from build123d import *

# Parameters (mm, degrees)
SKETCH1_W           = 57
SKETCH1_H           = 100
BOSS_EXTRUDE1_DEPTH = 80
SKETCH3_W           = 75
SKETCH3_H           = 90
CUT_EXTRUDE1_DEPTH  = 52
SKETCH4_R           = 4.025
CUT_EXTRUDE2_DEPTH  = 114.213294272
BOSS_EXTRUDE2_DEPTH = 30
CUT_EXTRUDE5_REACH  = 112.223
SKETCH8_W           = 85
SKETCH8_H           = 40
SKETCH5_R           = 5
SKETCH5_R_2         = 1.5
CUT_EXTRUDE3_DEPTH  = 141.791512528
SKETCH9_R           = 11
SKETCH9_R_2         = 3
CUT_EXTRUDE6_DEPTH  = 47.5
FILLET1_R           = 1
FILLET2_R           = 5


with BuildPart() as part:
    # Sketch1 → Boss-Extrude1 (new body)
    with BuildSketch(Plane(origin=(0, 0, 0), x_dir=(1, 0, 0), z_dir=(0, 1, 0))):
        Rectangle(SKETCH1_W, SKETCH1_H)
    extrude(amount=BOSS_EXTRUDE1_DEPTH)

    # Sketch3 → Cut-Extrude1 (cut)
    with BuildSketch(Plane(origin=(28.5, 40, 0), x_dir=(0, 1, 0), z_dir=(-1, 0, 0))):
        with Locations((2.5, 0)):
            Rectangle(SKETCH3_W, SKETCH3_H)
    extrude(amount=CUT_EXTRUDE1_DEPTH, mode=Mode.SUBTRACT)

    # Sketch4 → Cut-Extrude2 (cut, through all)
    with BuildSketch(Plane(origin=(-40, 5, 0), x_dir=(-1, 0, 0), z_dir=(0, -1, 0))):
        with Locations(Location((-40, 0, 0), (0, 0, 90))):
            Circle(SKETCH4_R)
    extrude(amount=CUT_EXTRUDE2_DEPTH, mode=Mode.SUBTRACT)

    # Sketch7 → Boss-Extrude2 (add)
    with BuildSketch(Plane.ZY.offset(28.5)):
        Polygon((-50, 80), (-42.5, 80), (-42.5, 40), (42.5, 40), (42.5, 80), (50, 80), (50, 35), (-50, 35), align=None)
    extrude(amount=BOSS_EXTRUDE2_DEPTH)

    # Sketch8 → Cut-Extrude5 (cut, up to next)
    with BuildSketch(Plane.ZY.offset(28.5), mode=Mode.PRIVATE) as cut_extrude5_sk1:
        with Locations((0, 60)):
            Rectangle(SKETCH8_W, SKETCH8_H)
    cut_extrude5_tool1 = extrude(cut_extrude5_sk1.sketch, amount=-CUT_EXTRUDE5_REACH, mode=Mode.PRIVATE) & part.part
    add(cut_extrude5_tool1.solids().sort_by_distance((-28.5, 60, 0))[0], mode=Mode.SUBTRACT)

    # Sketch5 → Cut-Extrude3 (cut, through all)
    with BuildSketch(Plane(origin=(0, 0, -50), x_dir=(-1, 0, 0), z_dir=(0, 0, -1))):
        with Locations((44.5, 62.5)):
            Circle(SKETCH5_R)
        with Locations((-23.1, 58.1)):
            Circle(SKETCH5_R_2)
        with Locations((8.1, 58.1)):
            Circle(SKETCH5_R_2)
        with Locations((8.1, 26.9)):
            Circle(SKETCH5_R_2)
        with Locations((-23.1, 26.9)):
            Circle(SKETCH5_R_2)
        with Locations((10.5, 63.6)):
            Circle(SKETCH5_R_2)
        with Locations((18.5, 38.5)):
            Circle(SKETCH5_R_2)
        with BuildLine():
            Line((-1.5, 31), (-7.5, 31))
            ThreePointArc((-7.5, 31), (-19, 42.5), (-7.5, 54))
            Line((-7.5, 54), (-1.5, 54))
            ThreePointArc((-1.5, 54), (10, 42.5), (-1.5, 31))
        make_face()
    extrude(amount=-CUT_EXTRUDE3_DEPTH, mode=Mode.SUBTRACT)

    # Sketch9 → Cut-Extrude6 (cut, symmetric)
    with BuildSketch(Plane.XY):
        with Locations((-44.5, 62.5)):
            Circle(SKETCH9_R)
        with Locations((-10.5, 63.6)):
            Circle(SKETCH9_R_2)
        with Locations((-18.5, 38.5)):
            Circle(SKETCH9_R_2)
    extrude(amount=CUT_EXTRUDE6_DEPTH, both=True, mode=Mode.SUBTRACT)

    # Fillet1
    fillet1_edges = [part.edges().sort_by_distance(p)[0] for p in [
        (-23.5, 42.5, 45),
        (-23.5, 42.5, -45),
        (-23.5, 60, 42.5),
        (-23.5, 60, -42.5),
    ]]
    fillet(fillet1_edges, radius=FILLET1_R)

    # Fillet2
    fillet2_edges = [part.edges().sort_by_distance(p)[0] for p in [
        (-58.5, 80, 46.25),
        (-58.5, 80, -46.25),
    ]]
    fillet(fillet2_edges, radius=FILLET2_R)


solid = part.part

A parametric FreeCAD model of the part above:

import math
import FreeCAD as App
import Part
import Sketcher

V = App.Vector


def edges_at(feature, points):
    """Names of the edges that pass closest to the given points."""
    edges = feature.Shape.Edges
    near = lambda p: min(range(len(edges)), key=lambda i: edges[i].distToShape(Part.Vertex(*p))[0])
    return sorted({f"Edge{near(p) + 1}" for p in points})

doc = App.newDocument("Part")
body = doc.addObject("PartDesign::Body", "Body")

sketch1 = doc.addObject("Sketcher::SketchObject", "Sketch")
body.addObject(sketch1)
sketch1.AttachmentSupport = (doc.XZ_Plane, [""])
sketch1.MapMode = "FlatFace"
sketch1.addGeometry([
    Part.LineSegment(V(-28, -50, 0), V(-28, 50, 0)),
    Part.LineSegment(V(-28, 50, 0), V(28, 50, 0)),
    Part.LineSegment(V(28, 50, 0), V(28, -50, 0)),
    Part.LineSegment(V(28, -50, 0), V(-28, -50, 0)),
], False)
sketch1.addConstraint([
    Sketcher.Constraint("Coincident", 0, 2, 1, 1),
    Sketcher.Constraint("Coincident", 1, 2, 2, 1),
    Sketcher.Constraint("Coincident", 2, 2, 3, 1),
    Sketcher.Constraint("Coincident", 3, 2, 0, 1),
    Sketcher.Constraint("Vertical", 0),
    Sketcher.Constraint("Horizontal", 1),
    Sketcher.Constraint("Vertical", 2),
    Sketcher.Constraint("Horizontal", 3),
    Sketcher.Constraint("Symmetric", 0, 2, 2, 2, -1, 1),
    Sketcher.Constraint("DistanceX", 1, 1, 1, 2, 57.0),
    Sketcher.Constraint("DistanceY", 0, 1, 0, 2, 100.0),
])
pad1 = doc.addObject("PartDesign::Pad", "Pad")
body.addObject(pad1)
pad1.Profile = sketch1
pad1.Length = 80
pad1.Reversed = True

sketch2 = doc.addObject("Sketcher::SketchObject", "Sketch001")
body.addObject(sketch2)
sketch2.AttachmentSupport = (doc.YZ_Plane, [""])
sketch2.MapMode = "FlatFace"
sketch2.AttachmentOffset = App.Placement(V(0, 0, 28.5), App.Rotation())
sketch2.addGeometry([
    Part.LineSegment(V(5, -45, 0), V(5, 45, 0)),
    Part.LineSegment(V(5, 45, 0), V(80, 45, 0)),
    Part.LineSegment(V(80, 45, 0), V(80, -45, 0)),
    Part.LineSegment(V(80, -45, 0), V(5, -45, 0)),
], False)
sketch2.addConstraint([
    Sketcher.Constraint("Coincident", 0, 2, 1, 1),
    Sketcher.Constraint("Coincident", 1, 2, 2, 1),
    Sketcher.Constraint("Coincident", 2, 2, 3, 1),
    Sketcher.Constraint("Coincident", 3, 2, 0, 1),
    Sketcher.Constraint("Vertical", 0),
    Sketcher.Constraint("Horizontal", 1),
    Sketcher.Constraint("Vertical", 2),
    Sketcher.Constraint("Horizontal", 3),
    Sketcher.Constraint("DistanceX", 1, 1, 1, 2, 75.0),
    Sketcher.Constraint("DistanceY", 0, 1, 0, 2, 90.0),
    Sketcher.Constraint("DistanceX", -1, 1, 0, 2, 5.0),
    Sketcher.Constraint("DistanceY", -1, 1, 0, 2, 45.0),
])
pocket1 = doc.addObject("PartDesign::Pocket", "Pocket")
body.addObject(pocket1)
pocket1.Profile = sketch2
pocket1.Length = 52

sketch3 = doc.addObject("Sketcher::SketchObject", "Sketch002")
body.addObject(sketch3)
sketch3.AttachmentSupport = (doc.XZ_Plane, [""])
sketch3.MapMode = "FlatFace"
sketch3.AttachmentOffset = App.Placement(V(0, 0, -5), App.Rotation())
sketch3.addGeometry(Part.Circle(V(0, 0, 0), V(0, 0, 1), 4), False)
sketch3.addConstraint([
    Sketcher.Constraint("Coincident", 0, 3, -1, 1),
    Sketcher.Constraint("Diameter", 0, 8.05),
])
pocket2 = doc.addObject("PartDesign::Pocket", "Pocket001")
body.addObject(pocket2)
pocket2.Profile = sketch3
pocket2.Type = "ThroughAll"
pocket2.Reversed = True

sketch4 = doc.addObject("Sketcher::SketchObject", "Sketch003")
body.addObject(sketch4)
sketch4.AttachmentSupport = (doc.YZ_Plane, [""])
sketch4.MapMode = "FlatFace"
sketch4.AttachmentOffset = App.Placement(V(0, 0, -28.5), App.Rotation())
sketch4.addGeometry([
    Part.LineSegment(V(80, -42, 0), V(80, -50, 0)),
    Part.LineSegment(V(80, -50, 0), V(35, -50, 0)),
    Part.LineSegment(V(35, -50, 0), V(35, 50, 0)),
    Part.LineSegment(V(35, 50, 0), V(80, 50, 0)),
    Part.LineSegment(V(80, 50, 0), V(80, 42, 0)),
    Part.LineSegment(V(80, 42, 0), V(40, 42, 0)),
    Part.LineSegment(V(40, 42, 0), V(40, -42, 0)),
    Part.LineSegment(V(40, -42, 0), V(80, -42, 0)),
], False)
sketch4.addConstraint([
    Sketcher.Constraint("Coincident", 0, 2, 1, 1),
    Sketcher.Constraint("Coincident", 1, 2, 2, 1),
    Sketcher.Constraint("Coincident", 2, 2, 3, 1),
    Sketcher.Constraint("Coincident", 3, 2, 4, 1),
    Sketcher.Constraint("Coincident", 4, 2, 5, 1),
    Sketcher.Constraint("Coincident", 5, 2, 6, 1),
    Sketcher.Constraint("Coincident", 6, 2, 7, 1),
    Sketcher.Constraint("Coincident", 7, 2, 0, 1),
    Sketcher.Constraint("Vertical", 0),
    Sketcher.Constraint("Horizontal", 1),
    Sketcher.Constraint("Vertical", 2),
    Sketcher.Constraint("Horizontal", 3),
    Sketcher.Constraint("Vertical", 4),
    Sketcher.Constraint("Horizontal", 5),
    Sketcher.Constraint("Vertical", 6),
    Sketcher.Constraint("Horizontal", 7),
    Sketcher.Constraint("Symmetric", 0, 2, 3, 2, -1),
    Sketcher.Constraint("Equal", 0, 4),
    Sketcher.Constraint("DistanceX", 1, 2, 1, 1, 45.0),
    Sketcher.Constraint("DistanceX", 5, 2, 5, 1, 40.0),
    Sketcher.Constraint("DistanceY", 2, 1, 2, 2, 100.0),
    Sketcher.Constraint("DistanceY", 6, 2, 6, 1, 85.0),
    Sketcher.Constraint("DistanceX", -1, 1, 0, 2, 80.0),
])
pad2 = doc.addObject("PartDesign::Pad", "Pad001")
body.addObject(pad2)
pad2.Profile = sketch4
pad2.Length = 30
pad2.Reversed = True

sketch5 = doc.addObject("Sketcher::SketchObject", "Sketch004")
body.addObject(sketch5)
sketch5.AttachmentSupport = (doc.YZ_Plane, [""])
sketch5.MapMode = "FlatFace"
sketch5.AttachmentOffset = App.Placement(V(0, 0, -28.5), App.Rotation())
sketch5.addGeometry([
    Part.LineSegment(V(80, -42, 0), V(40, -42, 0)),
    Part.LineSegment(V(40, -42, 0), V(40, 42, 0)),
    Part.LineSegment(V(40, 42, 0), V(80, 42, 0)),
    Part.LineSegment(V(80, 42, 0), V(80, -42, 0)),
], False)
sketch5.addConstraint([
    Sketcher.Constraint("Coincident", 0, 2, 1, 1),
    Sketcher.Constraint("Coincident", 1, 2, 2, 1),
    Sketcher.Constraint("Coincident", 2, 2, 3, 1),
    Sketcher.Constraint("Coincident", 3, 2, 0, 1),
    Sketcher.Constraint("Horizontal", 0),
    Sketcher.Constraint("Vertical", 1),
    Sketcher.Constraint("Horizontal", 2),
    Sketcher.Constraint("Vertical", 3),
    Sketcher.Constraint("DistanceX", 0, 2, 0, 1, 40.0),
    Sketcher.Constraint("DistanceY", 1, 1, 1, 2, 85.0),
    Sketcher.Constraint("DistanceX", -1, 1, 0, 2, 40.0),
    Sketcher.Constraint("DistanceY", 0, 2, -1, 1, 42.5),
])
pocket3 = doc.addObject("PartDesign::Pocket", "Pocket002")
body.addObject(pocket3)
pocket3.Profile = sketch5
pocket3.Type = "UpToFirst"
pocket3.Reversed = True

sketch6 = doc.addObject("Sketcher::SketchObject", "Sketch005")
body.addObject(sketch6)
sketch6.AttachmentSupport = (doc.XY_Plane, [""])
sketch6.MapMode = "FlatFace"
sketch6.AttachmentOffset = App.Placement(V(0, 0, -50), App.Rotation())
sketch6.addGeometry([
    Part.Circle(V(-44.5, 62.5, 0), V(0, 0, 1), 5),
    Part.Circle(V(23.1, 58.1, 0), V(0, 0, 1), 1.5),
    Part.Circle(V(-8.1, 58.1, 0), V(0, 0, 1), 1.5),
    Part.Circle(V(-8.1, 26.9, 0), V(0, 0, 1), 1.5),
    Part.Circle(V(23.1, 26.9, 0), V(0, 0, 1), 1.5),
    Part.Circle(V(-10.5, 63.6, 0), V(0, 0, 1), 1.5),
    Part.Circle(V(-18.5, 38.5, 0), V(0, 0, 1), 1.5),
    Part.LineSegment(V(7.5, 31, 0), V(1.5, 31, 0)),
    Part.ArcOfCircle(Part.Circle(V(1.5, 42.5, 0), V(0, 0, 1), 11.5), math.radians(90), math.radians(270)),
    Part.LineSegment(V(1.5, 54, 0), V(7.5, 54, 0)),
    Part.ArcOfCircle(Part.Circle(V(7.5, 42.5, 0), V(0, 0, 1), 11.5), math.radians(-90), math.radians(90)),
], False)
sketch6.addConstraint([
    Sketcher.Constraint("Tangent", 7, 2, 8, 2),
    Sketcher.Constraint("Tangent", 8, 1, 9, 1),
    Sketcher.Constraint("Tangent", 9, 2, 10, 2),
    Sketcher.Constraint("Tangent", 10, 1, 7, 1),
    Sketcher.Constraint("Horizontal", 7),
    Sketcher.Constraint("Horizontal", 9),
    Sketcher.Constraint("Equal", 1, 2),
    Sketcher.Constraint("Equal", 2, 3),
    Sketcher.Constraint("Equal", 3, 4),
    Sketcher.Constraint("Equal", 4, 5),
    Sketcher.Constraint("Equal", 5, 6),
    Sketcher.Constraint("Horizontal", 1, 3, 2, 3),
    Sketcher.Constraint("Horizontal", 3, 3, 4, 3),
    Sketcher.Constraint("Vertical", 2, 3, 3, 3),
    Sketcher.Constraint("Vertical", 1, 3, 4, 3),
    Sketcher.Constraint("Diameter", 0, 10.0),
    Sketcher.Constraint("Diameter", 1, 3.0),
    Sketcher.Constraint("Radius", 8, 11.5),
    Sketcher.Constraint("DistanceX", 7, 2, 7, 1, 6.0),
    Sketcher.Constraint("DistanceY", -1, 1, 7, 2, 31.0),
    Sketcher.Constraint("DistanceX", 0, 3, 5, 3, 34.0),
    Sketcher.Constraint("DistanceX", 6, 3, 5, 3, 8.0),
    Sketcher.Constraint("DistanceY", 6, 3, 0, 3, 24.0),
    Sketcher.Constraint("DistanceX", 6, 3, 8, 3, 20.0),
    Sketcher.Constraint("DistanceY", 6, 3, 8, 3, 4.0),
    Sketcher.Constraint("DistanceX", 0, 3, -1, 1, 44.5),
    Sketcher.Constraint("DistanceX", -1, 1, 1, 3, 23.1),
    Sketcher.Constraint("DistanceY", -1, 1, 1, 3, 58.1),
    Sketcher.Constraint("DistanceX", 2, 3, -1, 1, 8.1),
    Sketcher.Constraint("DistanceY", -1, 1, 3, 3, 26.9),
    Sketcher.Constraint("DistanceY", -1, 1, 5, 3, 63.6),
])
pocket4 = doc.addObject("PartDesign::Pocket", "Pocket003")
body.addObject(pocket4)
pocket4.Profile = sketch6
pocket4.Type = "ThroughAll"
pocket4.Reversed = True

sketch7 = doc.addObject("Sketcher::SketchObject", "Sketch006")
body.addObject(sketch7)
sketch7.AttachmentSupport = (doc.XY_Plane, [""])
sketch7.MapMode = "FlatFace"
sketch7.addGeometry([
    Part.Circle(V(-44.5, 62.5, 0), V(0, 0, 1), 11),
    Part.Circle(V(-10.5, 63.6, 0), V(0, 0, 1), 3),
    Part.Circle(V(-18.5, 38.5, 0), V(0, 0, 1), 3),
], False)
sketch7.addConstraint([
    Sketcher.Constraint("Equal", 1, 2),
    Sketcher.Constraint("Diameter", 0, 22.0),
    Sketcher.Constraint("Diameter", 1, 6.0),
    Sketcher.Constraint("DistanceX", 0, 3, 1, 3, 34.0),
    Sketcher.Constraint("DistanceX", 2, 3, 1, 3, 8.0),
    Sketcher.Constraint("DistanceY", 2, 3, 0, 3, 24.0),
    Sketcher.Constraint("DistanceX", 0, 3, -1, 1, 44.5),
    Sketcher.Constraint("DistanceY", -1, 1, 0, 3, 62.5),
    Sketcher.Constraint("DistanceY", -1, 1, 1, 3, 63.6),
])
pocket5 = doc.addObject("PartDesign::Pocket", "Pocket004")
body.addObject(pocket5)
pocket5.Profile = sketch7
pocket5.Length = 95
pocket5.Midplane = True
doc.recompute()

fillet = doc.addObject("PartDesign::Fillet", "Fillet")
body.addObject(fillet)
fillet.Base = (pocket5, edges_at(pocket5, [
    (-23.5, 42.5, 45),
    (-23.5, 42.5, -45),
    (-23.5, 60, 42.5),
    (-23.5, 60, -42.5),
]))
fillet.Radius = 1
doc.recompute()

fillet2 = doc.addObject("PartDesign::Fillet", "Fillet001")
body.addObject(fillet2)
fillet2.Base = (fillet, edges_at(fillet, [(-58.5, 80, 46.25), (-58.5, 80, -46.25)]))
fillet2.Radius = 5

doc.recompute()
